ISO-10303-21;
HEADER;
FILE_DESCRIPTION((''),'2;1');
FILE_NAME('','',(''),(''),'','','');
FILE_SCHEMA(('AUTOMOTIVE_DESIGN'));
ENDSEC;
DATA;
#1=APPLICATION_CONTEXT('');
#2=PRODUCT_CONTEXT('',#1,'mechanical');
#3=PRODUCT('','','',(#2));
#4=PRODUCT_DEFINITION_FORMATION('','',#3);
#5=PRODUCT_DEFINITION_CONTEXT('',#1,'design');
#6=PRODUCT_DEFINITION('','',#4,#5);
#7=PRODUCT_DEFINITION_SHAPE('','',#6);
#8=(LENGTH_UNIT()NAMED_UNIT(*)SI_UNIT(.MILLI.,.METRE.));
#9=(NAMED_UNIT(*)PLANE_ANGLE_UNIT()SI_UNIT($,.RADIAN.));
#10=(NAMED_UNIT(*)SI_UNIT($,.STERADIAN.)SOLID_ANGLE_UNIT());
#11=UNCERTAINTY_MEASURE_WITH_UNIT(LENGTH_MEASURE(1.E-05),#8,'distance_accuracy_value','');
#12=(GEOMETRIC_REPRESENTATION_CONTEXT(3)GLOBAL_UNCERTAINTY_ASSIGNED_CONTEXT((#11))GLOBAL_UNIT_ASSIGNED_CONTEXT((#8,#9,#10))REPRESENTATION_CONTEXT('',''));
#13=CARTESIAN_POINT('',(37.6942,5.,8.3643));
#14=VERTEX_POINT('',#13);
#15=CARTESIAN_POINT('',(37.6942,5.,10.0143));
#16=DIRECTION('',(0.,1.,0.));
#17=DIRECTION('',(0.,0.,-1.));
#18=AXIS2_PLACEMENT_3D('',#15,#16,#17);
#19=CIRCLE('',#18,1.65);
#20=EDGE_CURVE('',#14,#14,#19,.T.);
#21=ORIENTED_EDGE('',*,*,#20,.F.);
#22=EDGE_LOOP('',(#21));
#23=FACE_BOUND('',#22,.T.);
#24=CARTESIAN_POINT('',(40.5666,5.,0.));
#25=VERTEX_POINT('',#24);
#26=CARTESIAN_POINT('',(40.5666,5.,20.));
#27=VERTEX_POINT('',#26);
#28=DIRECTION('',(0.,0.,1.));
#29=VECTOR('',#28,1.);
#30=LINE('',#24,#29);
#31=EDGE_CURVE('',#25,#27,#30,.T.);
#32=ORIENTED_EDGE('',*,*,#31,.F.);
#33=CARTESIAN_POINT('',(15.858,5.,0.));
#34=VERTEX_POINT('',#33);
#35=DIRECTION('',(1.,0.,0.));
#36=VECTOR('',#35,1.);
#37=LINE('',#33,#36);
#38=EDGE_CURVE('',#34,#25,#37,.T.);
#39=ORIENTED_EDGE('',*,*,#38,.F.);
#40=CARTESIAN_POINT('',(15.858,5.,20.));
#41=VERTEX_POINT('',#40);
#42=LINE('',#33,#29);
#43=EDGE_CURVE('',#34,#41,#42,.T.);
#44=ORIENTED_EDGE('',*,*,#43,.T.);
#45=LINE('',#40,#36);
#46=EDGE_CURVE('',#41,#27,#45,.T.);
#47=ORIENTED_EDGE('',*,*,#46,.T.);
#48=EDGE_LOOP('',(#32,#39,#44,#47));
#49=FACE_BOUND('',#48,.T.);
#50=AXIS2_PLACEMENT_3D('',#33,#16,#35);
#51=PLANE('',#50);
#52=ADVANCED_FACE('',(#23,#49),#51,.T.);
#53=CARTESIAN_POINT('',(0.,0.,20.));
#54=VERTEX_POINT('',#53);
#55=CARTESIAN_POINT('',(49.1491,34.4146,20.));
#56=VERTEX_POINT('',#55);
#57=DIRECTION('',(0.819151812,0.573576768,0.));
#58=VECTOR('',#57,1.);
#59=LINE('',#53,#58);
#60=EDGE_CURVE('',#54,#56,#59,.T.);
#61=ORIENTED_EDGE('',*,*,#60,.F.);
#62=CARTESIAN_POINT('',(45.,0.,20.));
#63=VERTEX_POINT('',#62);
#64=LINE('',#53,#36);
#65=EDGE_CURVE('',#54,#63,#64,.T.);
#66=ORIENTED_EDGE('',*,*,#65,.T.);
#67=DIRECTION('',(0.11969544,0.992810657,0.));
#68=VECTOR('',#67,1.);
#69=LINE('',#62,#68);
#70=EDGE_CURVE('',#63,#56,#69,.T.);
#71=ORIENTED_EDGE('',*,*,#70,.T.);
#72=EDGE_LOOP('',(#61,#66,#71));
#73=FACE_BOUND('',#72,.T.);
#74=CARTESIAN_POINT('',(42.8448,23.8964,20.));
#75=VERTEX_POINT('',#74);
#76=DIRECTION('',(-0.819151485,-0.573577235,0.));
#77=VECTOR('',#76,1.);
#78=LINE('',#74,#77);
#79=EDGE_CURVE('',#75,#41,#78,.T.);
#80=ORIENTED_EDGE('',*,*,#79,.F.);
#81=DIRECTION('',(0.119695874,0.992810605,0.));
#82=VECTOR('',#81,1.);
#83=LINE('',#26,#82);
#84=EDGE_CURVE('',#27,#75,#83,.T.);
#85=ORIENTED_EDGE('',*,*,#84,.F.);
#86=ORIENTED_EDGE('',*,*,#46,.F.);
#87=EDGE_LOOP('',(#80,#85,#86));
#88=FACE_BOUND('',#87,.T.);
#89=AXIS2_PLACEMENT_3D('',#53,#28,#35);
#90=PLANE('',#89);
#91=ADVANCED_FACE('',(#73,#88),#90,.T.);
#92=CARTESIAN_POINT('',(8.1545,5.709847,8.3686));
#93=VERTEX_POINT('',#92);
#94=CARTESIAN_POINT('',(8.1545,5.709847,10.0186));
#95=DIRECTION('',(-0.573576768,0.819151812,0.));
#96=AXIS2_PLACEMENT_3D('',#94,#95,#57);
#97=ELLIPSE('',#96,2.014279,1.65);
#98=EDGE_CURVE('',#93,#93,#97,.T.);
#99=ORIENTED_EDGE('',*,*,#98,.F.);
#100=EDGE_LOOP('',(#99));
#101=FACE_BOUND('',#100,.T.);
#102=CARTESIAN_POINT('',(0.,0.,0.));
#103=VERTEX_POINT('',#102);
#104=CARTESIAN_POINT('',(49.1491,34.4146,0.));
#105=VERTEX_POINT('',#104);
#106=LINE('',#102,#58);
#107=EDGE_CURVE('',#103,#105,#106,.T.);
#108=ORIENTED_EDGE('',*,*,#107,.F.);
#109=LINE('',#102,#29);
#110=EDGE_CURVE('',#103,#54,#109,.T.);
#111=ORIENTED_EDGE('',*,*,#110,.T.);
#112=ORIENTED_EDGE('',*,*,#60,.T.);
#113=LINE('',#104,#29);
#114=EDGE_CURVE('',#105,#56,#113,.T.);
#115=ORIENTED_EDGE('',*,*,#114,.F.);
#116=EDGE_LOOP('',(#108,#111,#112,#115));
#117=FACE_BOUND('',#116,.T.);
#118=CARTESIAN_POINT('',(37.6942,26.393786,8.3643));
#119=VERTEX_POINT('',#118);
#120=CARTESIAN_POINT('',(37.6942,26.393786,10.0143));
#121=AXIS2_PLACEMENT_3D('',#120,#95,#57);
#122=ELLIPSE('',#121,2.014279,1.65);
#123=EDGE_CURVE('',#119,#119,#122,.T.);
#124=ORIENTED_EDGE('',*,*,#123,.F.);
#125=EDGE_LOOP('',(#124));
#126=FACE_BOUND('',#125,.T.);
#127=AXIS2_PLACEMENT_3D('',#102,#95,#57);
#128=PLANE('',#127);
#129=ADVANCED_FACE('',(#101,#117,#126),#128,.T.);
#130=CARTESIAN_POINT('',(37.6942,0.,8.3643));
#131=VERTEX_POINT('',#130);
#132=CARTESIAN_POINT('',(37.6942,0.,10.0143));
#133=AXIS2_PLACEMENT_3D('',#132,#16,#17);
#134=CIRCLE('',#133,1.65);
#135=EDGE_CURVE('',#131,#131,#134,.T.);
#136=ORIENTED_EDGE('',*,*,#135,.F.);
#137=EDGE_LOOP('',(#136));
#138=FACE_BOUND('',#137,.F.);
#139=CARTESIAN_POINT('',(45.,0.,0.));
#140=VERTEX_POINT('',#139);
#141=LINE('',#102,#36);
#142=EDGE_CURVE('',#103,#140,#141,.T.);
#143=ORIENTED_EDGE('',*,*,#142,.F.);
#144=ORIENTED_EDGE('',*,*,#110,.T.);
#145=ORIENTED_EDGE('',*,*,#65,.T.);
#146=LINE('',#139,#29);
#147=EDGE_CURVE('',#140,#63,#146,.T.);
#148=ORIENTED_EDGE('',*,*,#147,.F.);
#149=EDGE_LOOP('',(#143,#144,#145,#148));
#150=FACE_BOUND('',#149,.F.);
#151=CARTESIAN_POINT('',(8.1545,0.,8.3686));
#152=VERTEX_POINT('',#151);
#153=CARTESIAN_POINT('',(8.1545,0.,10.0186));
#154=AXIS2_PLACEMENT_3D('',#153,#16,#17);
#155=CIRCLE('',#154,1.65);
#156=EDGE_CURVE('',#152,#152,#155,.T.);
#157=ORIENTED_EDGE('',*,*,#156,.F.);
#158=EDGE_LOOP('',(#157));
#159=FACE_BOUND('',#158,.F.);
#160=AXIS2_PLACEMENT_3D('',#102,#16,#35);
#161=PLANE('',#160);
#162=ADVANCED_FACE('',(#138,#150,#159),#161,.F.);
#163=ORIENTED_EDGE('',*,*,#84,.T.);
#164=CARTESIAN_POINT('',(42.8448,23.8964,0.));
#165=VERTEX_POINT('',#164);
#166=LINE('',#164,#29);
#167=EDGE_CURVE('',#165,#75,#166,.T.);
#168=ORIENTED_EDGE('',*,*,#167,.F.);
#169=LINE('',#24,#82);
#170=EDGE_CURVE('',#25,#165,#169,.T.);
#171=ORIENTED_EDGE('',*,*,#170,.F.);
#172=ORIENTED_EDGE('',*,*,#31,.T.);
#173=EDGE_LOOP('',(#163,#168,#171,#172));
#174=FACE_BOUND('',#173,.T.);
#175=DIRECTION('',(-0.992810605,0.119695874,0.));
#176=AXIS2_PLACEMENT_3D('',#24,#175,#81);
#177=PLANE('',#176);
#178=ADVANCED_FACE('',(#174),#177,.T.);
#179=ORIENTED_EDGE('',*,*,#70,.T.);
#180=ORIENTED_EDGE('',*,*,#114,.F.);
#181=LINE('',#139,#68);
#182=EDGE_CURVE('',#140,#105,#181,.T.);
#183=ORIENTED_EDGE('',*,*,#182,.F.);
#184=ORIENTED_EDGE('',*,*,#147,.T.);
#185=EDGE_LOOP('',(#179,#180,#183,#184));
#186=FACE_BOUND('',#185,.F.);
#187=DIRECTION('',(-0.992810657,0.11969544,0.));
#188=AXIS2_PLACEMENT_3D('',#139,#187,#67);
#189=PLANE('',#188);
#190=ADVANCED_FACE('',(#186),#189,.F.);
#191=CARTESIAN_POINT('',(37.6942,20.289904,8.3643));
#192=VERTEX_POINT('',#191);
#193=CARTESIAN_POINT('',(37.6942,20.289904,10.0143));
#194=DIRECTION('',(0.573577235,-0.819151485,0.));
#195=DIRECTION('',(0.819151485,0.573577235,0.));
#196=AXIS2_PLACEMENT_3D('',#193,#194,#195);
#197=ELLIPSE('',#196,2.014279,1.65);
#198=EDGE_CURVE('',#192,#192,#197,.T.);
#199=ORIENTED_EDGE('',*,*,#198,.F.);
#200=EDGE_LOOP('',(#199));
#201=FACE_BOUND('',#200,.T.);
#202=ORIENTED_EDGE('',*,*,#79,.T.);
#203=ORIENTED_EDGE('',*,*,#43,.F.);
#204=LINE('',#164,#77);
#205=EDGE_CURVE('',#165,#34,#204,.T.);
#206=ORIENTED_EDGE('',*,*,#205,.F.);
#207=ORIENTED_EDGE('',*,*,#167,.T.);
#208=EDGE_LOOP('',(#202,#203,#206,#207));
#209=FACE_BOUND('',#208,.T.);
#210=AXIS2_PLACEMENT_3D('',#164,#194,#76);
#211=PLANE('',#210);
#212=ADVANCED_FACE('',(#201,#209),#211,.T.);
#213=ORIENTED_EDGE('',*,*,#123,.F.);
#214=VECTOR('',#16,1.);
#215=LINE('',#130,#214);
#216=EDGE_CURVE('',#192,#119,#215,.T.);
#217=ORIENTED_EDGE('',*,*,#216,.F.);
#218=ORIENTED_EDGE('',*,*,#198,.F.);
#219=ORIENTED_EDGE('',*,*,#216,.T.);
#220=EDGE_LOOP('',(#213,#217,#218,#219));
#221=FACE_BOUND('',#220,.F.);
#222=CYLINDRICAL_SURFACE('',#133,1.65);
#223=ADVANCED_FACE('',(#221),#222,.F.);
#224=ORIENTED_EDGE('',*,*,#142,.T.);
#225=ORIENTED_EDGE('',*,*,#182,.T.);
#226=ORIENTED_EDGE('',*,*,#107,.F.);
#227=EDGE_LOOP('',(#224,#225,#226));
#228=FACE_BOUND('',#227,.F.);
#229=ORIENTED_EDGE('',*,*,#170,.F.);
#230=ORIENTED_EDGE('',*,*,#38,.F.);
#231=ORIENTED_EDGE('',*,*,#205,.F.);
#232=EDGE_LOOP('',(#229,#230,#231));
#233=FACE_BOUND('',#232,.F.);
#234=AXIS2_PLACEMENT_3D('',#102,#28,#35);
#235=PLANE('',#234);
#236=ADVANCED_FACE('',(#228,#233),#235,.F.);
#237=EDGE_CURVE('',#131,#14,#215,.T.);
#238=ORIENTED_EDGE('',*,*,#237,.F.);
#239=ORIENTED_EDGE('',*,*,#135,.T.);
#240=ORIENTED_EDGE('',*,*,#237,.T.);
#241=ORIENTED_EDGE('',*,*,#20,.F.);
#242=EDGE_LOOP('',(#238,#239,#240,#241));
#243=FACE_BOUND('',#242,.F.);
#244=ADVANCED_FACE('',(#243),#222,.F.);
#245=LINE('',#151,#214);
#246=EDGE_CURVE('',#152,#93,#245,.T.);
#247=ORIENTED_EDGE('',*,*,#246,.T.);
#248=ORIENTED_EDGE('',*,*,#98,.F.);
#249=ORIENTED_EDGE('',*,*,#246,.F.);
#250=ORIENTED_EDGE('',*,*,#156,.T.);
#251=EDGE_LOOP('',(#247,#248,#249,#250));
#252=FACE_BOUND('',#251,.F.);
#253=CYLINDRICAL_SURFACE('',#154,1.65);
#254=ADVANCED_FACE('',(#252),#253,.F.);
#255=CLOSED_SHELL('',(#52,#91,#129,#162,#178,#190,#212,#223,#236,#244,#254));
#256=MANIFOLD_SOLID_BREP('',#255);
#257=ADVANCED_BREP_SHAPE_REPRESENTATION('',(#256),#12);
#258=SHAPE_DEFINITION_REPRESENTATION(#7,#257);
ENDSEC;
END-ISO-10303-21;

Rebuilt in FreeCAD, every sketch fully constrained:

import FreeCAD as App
import Part
import Sketcher

V = App.Vector
Q = App.Units.Quantity


def add_polygon(sketch, points):
    """Adds a closed chain of lines whose ends are joined by coincident constraints."""
    first, n = sketch.GeometryCount, len(points)
    for a, b in zip(points, points[1:] + points[:1]):
        sketch.addGeometry(Part.LineSegment(App.Vector(*a, 0), App.Vector(*b, 0)), False)
    for i in range(n):
        sketch.addConstraint(Sketcher.Constraint("Coincident", first + i, 2, first + (i + 1) % n, 1))

doc = App.newDocument("Part")
body = doc.addObject("PartDesign::Body", "Body")

sketch1 = body.newObject("Sketcher::SketchObject", "Sketch")
sketch1.AttachmentSupport = (doc.getObject("XY_Plane"), [""])
sketch1.MapMode = "FlatFace"
add_polygon(sketch1, [(49, 34), (0, 0), (45, 0)])
add_polygon(sketch1, [(16, 5), (43, 24), (41, 5)])
sketch1.addConstraint(Sketcher.Constraint("Horizontal", 1))
sketch1.addConstraint(Sketcher.Constraint("Horizontal", 5))
sketch1.addConstraint(Sketcher.Constraint("Coincident", 0, 2, -1, 1))
sketch1.addConstraint(Sketcher.Constraint("Parallel", 0, 3))
sketch1.addConstraint(Sketcher.Constraint("Parallel", 2, 4))
sketch1.addConstraint(Sketcher.Constraint("DistanceX", 1, 1, 1, 2, 45.0))
sketch1.addConstraint(Sketcher.Constraint("Angle", 3, Q("35 deg")))
sketch1.addConstraint(Sketcher.Constraint("Distance", 0, 60.0))
sketch1.addConstraint(Sketcher.Constraint("DistanceY", -1, 1, 4, 2, 5.0))
sketch1.addConstraint(Sketcher.Constraint("DistanceX", 5, 2, 5, 1, 24.7086))
sketch1.addConstraint(Sketcher.Constraint("DistanceX", -1, 1, 5, 2, 15.858))
pad1 = body.newObject("PartDesign::Pad", "Pad")
pad1.Profile = sketch1
pad1.Length = 20

sketch2 = body.newObject("Sketcher::SketchObject", "Sketch001")
sketch2.AttachmentSupport = (doc.getObject("XZ_Plane"), [""])
sketch2.MapMode = "FlatFace"
sketch2.addGeometry(Part.Circle(V(37.7, 10, 0), V(0, 0, 1), 1.6), False)
sketch2.addGeometry(Part.Circle(V(8.2, 10, 0), V(0, 0, 1), 1.6), False)
sketch2.addConstraint(Sketcher.Constraint("Equal", 0, 1))
sketch2.addConstraint(Sketcher.Constraint("Diameter", 0, 3.3))
sketch2.addConstraint(Sketcher.Constraint("DistanceX", -1, 1, 0, 3, 37.6942))
sketch2.addConstraint(Sketcher.Constraint("DistanceY", -1, 1, 0, 3, 10.0143))
sketch2.addConstraint(Sketcher.Constraint("DistanceX", -1, 1, 1, 3, 8.1545))
sketch2.addConstraint(Sketcher.Constraint("DistanceY", -1, 1, 1, 3, 10.0186))
doc.recompute()
hole = body.newObject("PartDesign::Hole", "Hole")
hole.Profile = sketch2
hole.ThreadType = "None"
hole.Diameter = 3.3
hole.DepthType = "ThroughAll"

doc.recompute()
